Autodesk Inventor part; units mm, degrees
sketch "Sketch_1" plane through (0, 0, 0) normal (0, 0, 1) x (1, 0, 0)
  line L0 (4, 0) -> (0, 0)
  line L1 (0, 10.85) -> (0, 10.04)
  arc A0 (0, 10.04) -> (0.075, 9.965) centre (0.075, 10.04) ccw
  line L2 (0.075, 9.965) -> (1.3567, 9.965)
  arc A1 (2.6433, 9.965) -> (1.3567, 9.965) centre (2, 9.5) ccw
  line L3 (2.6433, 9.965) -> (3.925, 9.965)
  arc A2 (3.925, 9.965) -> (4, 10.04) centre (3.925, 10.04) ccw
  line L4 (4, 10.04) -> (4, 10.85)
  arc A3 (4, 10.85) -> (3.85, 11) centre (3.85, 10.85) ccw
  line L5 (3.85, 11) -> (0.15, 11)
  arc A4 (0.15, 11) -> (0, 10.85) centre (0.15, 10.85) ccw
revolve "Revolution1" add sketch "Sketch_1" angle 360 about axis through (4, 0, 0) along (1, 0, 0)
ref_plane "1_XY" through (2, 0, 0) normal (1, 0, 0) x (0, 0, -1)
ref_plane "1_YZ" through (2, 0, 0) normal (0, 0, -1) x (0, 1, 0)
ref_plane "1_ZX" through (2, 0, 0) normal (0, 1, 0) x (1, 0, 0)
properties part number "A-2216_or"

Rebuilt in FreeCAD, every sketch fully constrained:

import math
import FreeCAD as App
import Part
import Sketcher

doc = App.newDocument("Part")
params = doc.addObject("Spreadsheet::Sheet", "Params")
for row, (alias, value) in enumerate([
    ("sketch1_radius", "0.15 mm"),
    ("sketch1_width", "3.7 mm"),
    ("sketch1_height", "0.81 mm"),
    ("revolution_angle", "360 deg"),
], start=1):
    params.set(f"A{row}", alias)
    params.set(f"B{row}", "=" + value)
    params.setAlias(f"B{row}", alias)

body = doc.addObject("PartDesign::Body", "Body")

sketch1 = body.newObject("Sketcher::SketchObject", "Sketch")
sketch1.AttachmentSupport = (doc.getObject("XY_Plane"), [""])
sketch1.MapMode = "FlatFace"
sketch1.addGeometry([
    Part.ArcOfCircle(Part.Circle(App.Vector(0.15, 10.85, 0), App.Vector(0, 0, 1), 0.15), math.radians(90), math.radians(180)),
    Part.LineSegment(App.Vector(0, 10.85, 0), App.Vector(0, 10.04, 0)),
    Part.ArcOfCircle(Part.Circle(App.Vector(0.075, 10.04, 0), App.Vector(0, 0, 1), 0.075), math.radians(180), math.radians(270)),
    Part.LineSegment(App.Vector(0.075, 9.965, 0), App.Vector(1.3567, 9.965, 0)),
    Part.ArcOfCircle(Part.Circle(App.Vector(2, 9.5, 0), App.Vector(0, 0, 1), 0.793763), math.radians(35.860735), math.radians(144.139265)),
    Part.LineSegment(App.Vector(2.6433, 9.965, 0), App.Vector(3.925, 9.965, 0)),
    Part.ArcOfCircle(Part.Circle(App.Vector(3.925, 10.04, 0), App.Vector(0, 0, 1), 0.075), math.radians(-90), math.radians(0)),
    Part.LineSegment(App.Vector(4, 10.04, 0), App.Vector(4, 10.85, 0)),
    Part.ArcOfCircle(Part.Circle(App.Vector(3.85, 10.85, 0), App.Vector(0, 0, 1), 0.15), math.radians(0), math.radians(90)),
    Part.LineSegment(App.Vector(3.85, 11, 0), App.Vector(0.15, 11, 0)),
], False)
sketch1.addConstraint([
    Sketcher.Constraint("Tangent", 0, 2, 1, 1),
    Sketcher.Constraint("Tangent", 1, 2, 2, 1),
    Sketcher.Constraint("Tangent", 2, 2, 3, 1),
    Sketcher.Constraint("Coincident", 3, 2, 4, 2),
    Sketcher.Constraint("Coincident", 4, 1, 5, 1),
    Sketcher.Constraint("Tangent", 5, 2, 6, 1),
    Sketcher.Constraint("Tangent", 6, 2, 7, 1),
    Sketcher.Constraint("Tangent", 7, 2, 8, 1),
    Sketcher.Constraint("Tangent", 8, 2, 9, 1),
    Sketcher.Constraint("Tangent", 9, 2, 0, 1),
    Sketcher.Constraint("Vertical", 1),
    Sketcher.Constraint("Horizontal", 3),
    Sketcher.Constraint("Horizontal", 5),
    Sketcher.Constraint("Vertical", 7),
    Sketcher.Constraint("Horizontal", 9),
    Sketcher.Constraint("Equal", 2, 6),
    Sketcher.Constraint("Equal", 0, 8),
    Sketcher.Constraint("PointOnObject", 0, 2, -2),
    Sketcher.Constraint("Horizontal", 2, 3, 6, 3),
    Sketcher.Constraint("Equal", 3, 5),
    Sketcher.Constraint("Radius", 0, 0.15),
    Sketcher.Constraint("DistanceX", 9, 2, 9, 1, 3.7),
    Sketcher.Constraint("DistanceY", -1, 1, 8, 2, 11.0),
    Sketcher.Constraint("Radius", 2, 0.075),
    Sketcher.Constraint("DistanceY", 1, 2, 1, 1, 0.81),
    Sketcher.Constraint("DistanceY", -1, 1, 4, 3, 9.5),
    Sketcher.Constraint("Radius", 4, 0.7938),
])
sketch1.setExpression("Constraints[20]", "Params.sketch1_radius")
sketch1.setExpression("Constraints[21]", "Params.sketch1_width")
sketch1.setExpression("Constraints[24]", "Params.sketch1_height")
revolution = body.newObject("PartDesign::Revolution", "Revolution")
revolution.Profile = sketch1
revolution.ReferenceAxis = (sketch1, ["H_Axis"])
revolution.setExpression("Angle", "Params.revolution_angle")

doc.recompute()
